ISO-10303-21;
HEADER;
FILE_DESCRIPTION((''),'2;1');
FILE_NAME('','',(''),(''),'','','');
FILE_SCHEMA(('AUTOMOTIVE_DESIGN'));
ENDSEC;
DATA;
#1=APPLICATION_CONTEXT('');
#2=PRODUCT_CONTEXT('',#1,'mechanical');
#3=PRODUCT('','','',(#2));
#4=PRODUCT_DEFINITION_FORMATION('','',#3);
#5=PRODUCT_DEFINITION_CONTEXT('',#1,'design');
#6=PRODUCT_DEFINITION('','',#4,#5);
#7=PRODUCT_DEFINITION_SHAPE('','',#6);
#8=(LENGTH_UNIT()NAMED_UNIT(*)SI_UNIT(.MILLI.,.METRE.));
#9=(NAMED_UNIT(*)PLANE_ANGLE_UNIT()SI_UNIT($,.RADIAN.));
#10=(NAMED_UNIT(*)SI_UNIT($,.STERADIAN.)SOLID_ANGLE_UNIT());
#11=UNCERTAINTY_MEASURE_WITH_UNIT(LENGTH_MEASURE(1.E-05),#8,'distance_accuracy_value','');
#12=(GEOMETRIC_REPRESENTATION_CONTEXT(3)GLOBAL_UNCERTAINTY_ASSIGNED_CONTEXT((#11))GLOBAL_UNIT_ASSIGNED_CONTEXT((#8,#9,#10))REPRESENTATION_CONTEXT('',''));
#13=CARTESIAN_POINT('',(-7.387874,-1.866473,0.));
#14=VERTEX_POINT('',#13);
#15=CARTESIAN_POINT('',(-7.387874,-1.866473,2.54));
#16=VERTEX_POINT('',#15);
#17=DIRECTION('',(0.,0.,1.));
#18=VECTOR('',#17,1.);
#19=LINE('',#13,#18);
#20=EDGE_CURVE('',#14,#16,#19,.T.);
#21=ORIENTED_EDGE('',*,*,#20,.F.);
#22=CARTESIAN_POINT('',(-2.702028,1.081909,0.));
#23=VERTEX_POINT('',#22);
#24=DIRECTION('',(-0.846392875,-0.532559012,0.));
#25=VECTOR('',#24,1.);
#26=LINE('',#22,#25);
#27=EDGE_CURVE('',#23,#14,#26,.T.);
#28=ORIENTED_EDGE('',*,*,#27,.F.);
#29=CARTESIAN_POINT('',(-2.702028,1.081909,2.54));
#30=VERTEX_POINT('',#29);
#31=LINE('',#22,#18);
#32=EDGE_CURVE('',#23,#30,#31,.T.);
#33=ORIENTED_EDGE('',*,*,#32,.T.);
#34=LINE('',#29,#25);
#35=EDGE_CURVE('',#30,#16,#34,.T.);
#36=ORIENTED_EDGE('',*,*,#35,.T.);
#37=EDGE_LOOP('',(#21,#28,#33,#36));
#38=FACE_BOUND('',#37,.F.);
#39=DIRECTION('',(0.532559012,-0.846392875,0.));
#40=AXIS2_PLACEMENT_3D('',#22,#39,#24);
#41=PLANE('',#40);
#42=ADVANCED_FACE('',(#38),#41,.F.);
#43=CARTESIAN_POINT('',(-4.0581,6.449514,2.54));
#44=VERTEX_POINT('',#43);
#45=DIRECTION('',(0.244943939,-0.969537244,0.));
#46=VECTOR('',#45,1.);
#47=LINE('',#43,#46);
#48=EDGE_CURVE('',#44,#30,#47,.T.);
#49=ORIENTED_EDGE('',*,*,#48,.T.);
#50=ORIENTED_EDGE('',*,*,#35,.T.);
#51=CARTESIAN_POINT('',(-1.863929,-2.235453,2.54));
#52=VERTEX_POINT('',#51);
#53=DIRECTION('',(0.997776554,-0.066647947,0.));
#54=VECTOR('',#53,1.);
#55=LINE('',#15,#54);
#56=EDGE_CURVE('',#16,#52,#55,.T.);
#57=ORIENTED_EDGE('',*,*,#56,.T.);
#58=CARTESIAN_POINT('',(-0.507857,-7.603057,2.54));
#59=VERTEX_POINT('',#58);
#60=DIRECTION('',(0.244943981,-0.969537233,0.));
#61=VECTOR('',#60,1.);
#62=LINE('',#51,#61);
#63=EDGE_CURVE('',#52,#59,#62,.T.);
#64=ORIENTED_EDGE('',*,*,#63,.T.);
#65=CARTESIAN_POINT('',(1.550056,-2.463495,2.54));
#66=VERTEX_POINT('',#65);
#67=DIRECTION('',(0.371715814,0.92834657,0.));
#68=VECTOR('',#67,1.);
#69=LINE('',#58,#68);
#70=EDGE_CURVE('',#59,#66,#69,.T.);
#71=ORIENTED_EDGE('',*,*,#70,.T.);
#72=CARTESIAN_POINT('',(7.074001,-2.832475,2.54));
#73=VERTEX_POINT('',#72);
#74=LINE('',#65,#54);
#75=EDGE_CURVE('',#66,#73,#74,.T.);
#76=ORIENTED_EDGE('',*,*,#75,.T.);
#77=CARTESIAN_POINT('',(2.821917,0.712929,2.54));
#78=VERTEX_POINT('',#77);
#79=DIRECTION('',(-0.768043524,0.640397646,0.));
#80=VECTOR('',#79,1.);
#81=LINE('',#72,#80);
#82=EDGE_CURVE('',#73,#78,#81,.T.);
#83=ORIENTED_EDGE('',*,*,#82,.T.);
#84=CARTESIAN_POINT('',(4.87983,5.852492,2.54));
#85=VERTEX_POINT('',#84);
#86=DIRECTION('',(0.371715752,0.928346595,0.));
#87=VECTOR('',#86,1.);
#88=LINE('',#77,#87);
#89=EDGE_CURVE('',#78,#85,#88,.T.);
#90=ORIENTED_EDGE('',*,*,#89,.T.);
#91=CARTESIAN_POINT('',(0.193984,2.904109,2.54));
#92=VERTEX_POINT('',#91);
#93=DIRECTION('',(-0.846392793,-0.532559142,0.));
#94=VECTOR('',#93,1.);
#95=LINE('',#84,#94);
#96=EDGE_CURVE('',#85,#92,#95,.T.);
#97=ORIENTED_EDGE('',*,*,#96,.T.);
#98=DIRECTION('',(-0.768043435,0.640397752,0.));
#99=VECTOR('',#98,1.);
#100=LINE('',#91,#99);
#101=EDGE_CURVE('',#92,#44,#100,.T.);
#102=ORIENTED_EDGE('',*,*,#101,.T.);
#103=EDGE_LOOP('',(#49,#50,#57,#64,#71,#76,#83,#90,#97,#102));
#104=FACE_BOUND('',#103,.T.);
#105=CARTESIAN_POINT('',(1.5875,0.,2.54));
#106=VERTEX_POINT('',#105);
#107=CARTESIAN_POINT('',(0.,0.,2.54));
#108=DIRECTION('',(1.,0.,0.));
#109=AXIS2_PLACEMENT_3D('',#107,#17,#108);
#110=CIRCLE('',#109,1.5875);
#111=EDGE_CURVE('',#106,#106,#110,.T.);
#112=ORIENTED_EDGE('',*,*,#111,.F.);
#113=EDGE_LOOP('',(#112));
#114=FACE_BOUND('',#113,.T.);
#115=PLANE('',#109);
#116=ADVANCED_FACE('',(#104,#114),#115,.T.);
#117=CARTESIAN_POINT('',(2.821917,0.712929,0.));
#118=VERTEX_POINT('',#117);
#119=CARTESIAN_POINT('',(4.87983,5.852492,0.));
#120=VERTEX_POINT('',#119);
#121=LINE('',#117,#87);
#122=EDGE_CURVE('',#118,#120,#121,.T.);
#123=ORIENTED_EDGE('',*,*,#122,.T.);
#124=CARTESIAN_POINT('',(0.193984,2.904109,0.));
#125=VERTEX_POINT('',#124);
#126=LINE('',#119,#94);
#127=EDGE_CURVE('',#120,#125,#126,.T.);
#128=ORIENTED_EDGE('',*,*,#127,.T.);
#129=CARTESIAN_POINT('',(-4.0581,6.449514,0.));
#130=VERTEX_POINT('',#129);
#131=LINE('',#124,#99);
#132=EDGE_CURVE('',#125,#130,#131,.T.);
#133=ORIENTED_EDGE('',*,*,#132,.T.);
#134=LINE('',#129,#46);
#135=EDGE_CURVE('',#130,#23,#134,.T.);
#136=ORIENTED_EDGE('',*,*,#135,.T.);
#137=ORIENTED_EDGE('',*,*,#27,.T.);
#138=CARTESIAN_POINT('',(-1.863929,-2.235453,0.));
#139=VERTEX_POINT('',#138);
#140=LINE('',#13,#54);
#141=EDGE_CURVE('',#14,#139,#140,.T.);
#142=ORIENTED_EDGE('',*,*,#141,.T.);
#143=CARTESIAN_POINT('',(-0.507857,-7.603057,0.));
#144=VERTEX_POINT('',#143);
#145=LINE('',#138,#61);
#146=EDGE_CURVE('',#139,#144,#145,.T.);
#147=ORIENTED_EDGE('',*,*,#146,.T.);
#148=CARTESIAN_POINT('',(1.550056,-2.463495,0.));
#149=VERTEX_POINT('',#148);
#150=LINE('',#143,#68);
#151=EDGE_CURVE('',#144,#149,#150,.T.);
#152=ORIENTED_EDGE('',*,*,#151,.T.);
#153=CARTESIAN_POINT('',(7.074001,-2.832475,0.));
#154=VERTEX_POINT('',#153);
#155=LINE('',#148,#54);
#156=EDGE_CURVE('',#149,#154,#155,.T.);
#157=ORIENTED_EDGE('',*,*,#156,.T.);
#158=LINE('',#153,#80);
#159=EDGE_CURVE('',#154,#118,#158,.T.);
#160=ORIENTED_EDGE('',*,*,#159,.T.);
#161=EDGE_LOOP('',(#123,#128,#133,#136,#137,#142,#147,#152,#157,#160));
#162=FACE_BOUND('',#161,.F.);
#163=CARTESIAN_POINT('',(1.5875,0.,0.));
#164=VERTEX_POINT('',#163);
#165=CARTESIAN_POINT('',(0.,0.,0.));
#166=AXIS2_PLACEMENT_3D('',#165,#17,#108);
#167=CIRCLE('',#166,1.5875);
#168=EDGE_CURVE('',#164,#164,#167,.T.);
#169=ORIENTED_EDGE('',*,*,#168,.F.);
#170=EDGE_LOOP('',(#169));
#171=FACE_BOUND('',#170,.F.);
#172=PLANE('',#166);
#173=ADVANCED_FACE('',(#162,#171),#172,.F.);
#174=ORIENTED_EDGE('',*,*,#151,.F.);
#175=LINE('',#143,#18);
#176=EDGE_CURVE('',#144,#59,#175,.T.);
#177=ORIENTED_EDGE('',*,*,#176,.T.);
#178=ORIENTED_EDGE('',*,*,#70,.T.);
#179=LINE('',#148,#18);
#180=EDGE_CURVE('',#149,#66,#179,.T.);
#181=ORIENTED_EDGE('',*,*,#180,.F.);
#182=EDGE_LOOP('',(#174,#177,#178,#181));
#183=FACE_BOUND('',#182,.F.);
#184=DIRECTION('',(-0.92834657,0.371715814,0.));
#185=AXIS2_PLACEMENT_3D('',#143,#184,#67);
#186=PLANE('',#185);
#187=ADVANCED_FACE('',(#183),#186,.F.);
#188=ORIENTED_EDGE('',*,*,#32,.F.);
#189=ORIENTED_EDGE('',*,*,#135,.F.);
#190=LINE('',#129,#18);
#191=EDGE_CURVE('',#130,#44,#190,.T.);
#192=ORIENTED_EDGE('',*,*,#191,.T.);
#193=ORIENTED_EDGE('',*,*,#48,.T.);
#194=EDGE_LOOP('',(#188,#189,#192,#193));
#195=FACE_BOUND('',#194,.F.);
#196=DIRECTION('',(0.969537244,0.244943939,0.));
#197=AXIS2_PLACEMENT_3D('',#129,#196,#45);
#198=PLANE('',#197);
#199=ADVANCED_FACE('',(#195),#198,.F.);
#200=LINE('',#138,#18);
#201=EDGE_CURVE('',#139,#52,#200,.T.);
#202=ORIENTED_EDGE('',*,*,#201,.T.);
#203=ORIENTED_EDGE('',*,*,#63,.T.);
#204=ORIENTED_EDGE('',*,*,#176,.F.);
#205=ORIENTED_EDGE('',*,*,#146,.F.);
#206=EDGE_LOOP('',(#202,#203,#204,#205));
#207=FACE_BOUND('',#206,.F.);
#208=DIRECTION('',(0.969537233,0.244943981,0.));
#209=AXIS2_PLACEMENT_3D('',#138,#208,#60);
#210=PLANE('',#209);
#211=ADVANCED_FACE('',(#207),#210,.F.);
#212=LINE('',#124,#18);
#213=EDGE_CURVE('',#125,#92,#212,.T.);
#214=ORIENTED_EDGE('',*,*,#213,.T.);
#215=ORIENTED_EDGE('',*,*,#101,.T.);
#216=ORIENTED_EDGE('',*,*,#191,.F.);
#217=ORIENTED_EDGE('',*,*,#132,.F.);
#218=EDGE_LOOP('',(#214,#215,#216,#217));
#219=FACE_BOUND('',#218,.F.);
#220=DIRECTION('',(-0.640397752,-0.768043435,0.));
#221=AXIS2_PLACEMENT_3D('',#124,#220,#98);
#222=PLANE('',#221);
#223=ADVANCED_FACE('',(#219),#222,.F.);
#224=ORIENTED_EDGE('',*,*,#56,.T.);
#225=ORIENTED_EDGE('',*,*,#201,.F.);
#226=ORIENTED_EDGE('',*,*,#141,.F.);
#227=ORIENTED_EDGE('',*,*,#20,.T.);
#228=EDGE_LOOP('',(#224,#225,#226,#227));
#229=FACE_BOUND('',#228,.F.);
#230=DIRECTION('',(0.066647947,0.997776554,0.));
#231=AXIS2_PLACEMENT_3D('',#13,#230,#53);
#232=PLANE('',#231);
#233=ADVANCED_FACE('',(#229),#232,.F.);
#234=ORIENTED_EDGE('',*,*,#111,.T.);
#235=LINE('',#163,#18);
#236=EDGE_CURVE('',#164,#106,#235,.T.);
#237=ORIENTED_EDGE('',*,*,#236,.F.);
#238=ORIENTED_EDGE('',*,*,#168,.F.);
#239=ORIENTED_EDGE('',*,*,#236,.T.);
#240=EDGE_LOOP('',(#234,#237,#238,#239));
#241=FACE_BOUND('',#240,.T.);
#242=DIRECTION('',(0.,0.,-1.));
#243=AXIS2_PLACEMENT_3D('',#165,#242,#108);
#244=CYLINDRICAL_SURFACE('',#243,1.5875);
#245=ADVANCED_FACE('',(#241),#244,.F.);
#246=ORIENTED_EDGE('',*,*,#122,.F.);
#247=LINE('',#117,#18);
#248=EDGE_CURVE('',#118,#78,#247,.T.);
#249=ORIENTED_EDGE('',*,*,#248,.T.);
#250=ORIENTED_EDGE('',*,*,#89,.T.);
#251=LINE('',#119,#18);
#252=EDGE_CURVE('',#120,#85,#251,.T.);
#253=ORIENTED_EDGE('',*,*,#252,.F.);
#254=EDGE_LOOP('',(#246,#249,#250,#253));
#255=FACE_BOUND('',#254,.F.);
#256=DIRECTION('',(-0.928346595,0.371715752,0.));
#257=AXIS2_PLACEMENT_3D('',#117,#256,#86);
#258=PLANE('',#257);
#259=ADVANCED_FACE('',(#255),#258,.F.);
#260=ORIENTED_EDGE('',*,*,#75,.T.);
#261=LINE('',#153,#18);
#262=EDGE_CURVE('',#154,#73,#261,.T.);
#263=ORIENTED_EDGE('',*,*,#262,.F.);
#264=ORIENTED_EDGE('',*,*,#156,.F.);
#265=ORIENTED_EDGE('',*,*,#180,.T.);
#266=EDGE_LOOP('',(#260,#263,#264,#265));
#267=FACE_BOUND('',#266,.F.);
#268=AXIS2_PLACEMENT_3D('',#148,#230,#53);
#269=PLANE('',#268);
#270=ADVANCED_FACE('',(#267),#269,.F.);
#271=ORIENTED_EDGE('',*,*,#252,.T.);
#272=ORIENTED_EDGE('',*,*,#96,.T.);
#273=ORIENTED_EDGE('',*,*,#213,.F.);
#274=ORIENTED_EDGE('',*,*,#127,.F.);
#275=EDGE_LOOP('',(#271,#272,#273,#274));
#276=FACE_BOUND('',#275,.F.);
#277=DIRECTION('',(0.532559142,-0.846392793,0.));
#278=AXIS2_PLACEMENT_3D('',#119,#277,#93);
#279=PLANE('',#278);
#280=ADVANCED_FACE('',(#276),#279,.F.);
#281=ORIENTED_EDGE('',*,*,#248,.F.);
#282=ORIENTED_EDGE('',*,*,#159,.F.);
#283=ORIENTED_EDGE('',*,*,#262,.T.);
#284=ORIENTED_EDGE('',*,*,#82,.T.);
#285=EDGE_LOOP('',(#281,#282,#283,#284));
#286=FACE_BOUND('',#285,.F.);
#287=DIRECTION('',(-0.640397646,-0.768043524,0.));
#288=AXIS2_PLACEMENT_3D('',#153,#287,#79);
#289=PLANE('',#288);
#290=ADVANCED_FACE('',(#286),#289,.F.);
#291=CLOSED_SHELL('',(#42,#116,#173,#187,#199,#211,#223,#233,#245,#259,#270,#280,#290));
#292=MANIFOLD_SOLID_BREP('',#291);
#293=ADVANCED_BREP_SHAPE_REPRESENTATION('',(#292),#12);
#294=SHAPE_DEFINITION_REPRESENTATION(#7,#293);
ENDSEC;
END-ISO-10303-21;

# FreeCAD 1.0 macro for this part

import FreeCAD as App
import Part
import Sketcher

V = App.Vector
Q = App.Units.Quantity

doc = App.newDocument("Part")
body = doc.addObject("PartDesign::Body", "Body")

# Sketch on XY plane
sketch1 = doc.addObject("Sketcher::SketchObject", "Sketch")
body.addObject(sketch1)
sketch1.AttachmentSupport = (doc.XY_Plane, [""])
sketch1.MapMode = "FlatFace"
sketch1.addGeometry([
    Part.LineSegment(V(0.2, 2.9, 0), V(-4.1, 6.4, 0)),  # 0
    Part.LineSegment(V(-4.1, 6.4, 0), V(-2.7, 1.1, 0)),  # 1
    Part.LineSegment(V(-2.7, 1.1, 0), V(-7.4, -1.9, 0)),  # 2
    Part.LineSegment(V(-7.4, -1.9, 0), V(-1.9, -2.2, 0)),  # 3
    Part.LineSegment(V(-1.9, -2.2, 0), V(-0.5, -7.6, 0)),  # 4
    Part.LineSegment(V(-0.5, -7.6, 0), V(1.6, -2.5, 0)),  # 5
    Part.LineSegment(V(1.6, -2.5, 0), V(7.1, -2.8, 0)),  # 6
    Part.LineSegment(V(7.1, -2.8, 0), V(2.8, 0.7, 0)),  # 7
    Part.LineSegment(V(2.8, 0.7, 0), V(4.9, 5.9, 0)),  # 8
    Part.LineSegment(V(4.9, 5.9, 0), V(0.2, 2.9, 0)),  # 9
    Part.Circle(V(0, 0, 0), V(0, 0, 1), 1.6),  # 10
], False)
sketch1.addConstraint([
    Sketcher.Constraint("Coincident", 0, 2, 1, 1),
    Sketcher.Constraint("Coincident", 1, 2, 2, 1),
    Sketcher.Constraint("Coincident", 2, 2, 3, 1),
    Sketcher.Constraint("Coincident", 3, 2, 4, 1),
    Sketcher.Constraint("Coincident", 4, 2, 5, 1),
    Sketcher.Constraint("Coincident", 5, 2, 6, 1),
    Sketcher.Constraint("Coincident", 6, 2, 7, 1),
    Sketcher.Constraint("Coincident", 7, 2, 8, 1),
    Sketcher.Constraint("Coincident", 8, 2, 9, 1),
    Sketcher.Constraint("Coincident", 9, 2, 0, 1),
    Sketcher.Constraint("Coincident", 10, 3, -1, 1),
    Sketcher.Constraint("Parallel", 1, 4),
    Sketcher.Constraint("Parallel", 3, 6),
    Sketcher.Constraint("Parallel", 0, 7),
    Sketcher.Constraint("Parallel", 5, 8),
    Sketcher.Constraint("Parallel", 2, 9),
    Sketcher.Constraint("Equal", 0, 1),
    Sketcher.Constraint("Equal", 1, 2),
    Sketcher.Constraint("Equal", 2, 3),
    Sketcher.Constraint("Equal", 3, 4),
    Sketcher.Constraint("Equal", 4, 5),
    Sketcher.Constraint("Equal", 5, 6),
    Sketcher.Constraint("Equal", 6, 7),
    Sketcher.Constraint("Equal", 7, 8),
    Sketcher.Constraint("Equal", 8, 9),
    Sketcher.Constraint("Diameter", 10, Q("0.125 in")),
    Sketcher.Constraint("DistanceX", 0, 2, -1, 1, Q("4.0581 mm")),
    Sketcher.Constraint("DistanceX", -1, 1, 6, 2, Q("7.074001 mm")),
    Sketcher.Constraint("DistanceX", 1, 2, 3, 2, Q("0.838099 mm")),
    Sketcher.Constraint("DistanceY", 1, 2, 9, 2, Q("1.8222 mm")),
    Sketcher.Constraint("DistanceY", -1, 1, 1, 2, Q("1.081909 mm")),
    Sketcher.Constraint("DistanceX", 3, 2, -1, 1, Q("1.863929 mm")),
])
pad1 = doc.addObject("PartDesign::Pad", "Pad")
body.addObject(pad1)
pad1.Profile = sketch1
pad1.Length = Q("0.1 in")

doc.recompute()
